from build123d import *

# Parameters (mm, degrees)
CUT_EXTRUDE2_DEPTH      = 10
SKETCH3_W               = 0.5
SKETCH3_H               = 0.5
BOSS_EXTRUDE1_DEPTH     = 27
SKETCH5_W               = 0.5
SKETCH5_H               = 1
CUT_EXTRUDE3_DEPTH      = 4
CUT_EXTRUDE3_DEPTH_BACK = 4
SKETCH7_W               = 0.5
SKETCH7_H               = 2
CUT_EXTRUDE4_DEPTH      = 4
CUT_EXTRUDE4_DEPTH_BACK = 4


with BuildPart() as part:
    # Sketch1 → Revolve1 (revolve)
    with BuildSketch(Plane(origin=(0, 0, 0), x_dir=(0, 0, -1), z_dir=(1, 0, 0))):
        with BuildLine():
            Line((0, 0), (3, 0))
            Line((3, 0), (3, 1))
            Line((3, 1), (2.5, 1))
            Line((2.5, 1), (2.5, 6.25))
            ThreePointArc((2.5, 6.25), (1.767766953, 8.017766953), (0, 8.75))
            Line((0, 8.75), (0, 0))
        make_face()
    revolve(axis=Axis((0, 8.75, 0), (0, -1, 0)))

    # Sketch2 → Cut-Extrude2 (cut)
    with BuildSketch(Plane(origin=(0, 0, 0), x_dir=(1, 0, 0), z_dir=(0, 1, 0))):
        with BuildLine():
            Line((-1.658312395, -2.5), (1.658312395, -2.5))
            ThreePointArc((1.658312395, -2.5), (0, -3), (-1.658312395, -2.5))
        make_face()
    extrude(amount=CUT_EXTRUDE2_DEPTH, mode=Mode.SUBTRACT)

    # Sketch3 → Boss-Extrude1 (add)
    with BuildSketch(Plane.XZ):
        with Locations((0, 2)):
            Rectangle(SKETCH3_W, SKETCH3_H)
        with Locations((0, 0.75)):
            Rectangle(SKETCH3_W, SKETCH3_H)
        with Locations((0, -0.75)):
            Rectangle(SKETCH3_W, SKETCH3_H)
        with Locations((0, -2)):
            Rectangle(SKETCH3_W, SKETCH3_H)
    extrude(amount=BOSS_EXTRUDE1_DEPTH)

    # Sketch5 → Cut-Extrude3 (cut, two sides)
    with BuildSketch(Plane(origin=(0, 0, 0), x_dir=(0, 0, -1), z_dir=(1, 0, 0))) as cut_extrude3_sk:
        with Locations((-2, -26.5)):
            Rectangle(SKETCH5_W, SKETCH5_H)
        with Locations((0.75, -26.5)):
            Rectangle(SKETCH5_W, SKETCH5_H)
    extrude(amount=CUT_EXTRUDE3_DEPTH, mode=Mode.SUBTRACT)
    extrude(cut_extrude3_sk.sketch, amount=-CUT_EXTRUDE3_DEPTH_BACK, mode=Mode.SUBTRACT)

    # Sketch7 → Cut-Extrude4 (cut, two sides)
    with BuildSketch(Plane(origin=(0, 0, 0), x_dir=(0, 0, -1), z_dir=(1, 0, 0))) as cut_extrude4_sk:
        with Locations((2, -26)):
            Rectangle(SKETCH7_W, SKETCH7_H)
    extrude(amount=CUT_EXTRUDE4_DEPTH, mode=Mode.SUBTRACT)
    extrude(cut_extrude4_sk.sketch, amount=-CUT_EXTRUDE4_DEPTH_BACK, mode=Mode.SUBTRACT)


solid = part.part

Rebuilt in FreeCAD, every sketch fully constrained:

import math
import FreeCAD as App
import Part
import Sketcher

V = App.Vector

doc = App.newDocument("Part")
body = doc.addObject("PartDesign::Body", "Body")

sketch1 = body.newObject("Sketcher::SketchObject", "Sketch")
sketch1.AttachmentSupport = (doc.getObject("YZ_Plane"), [""])
sketch1.MapMode = "FlatFace"
sketch1.addGeometry([
    Part.LineSegment(V(0, 0, 0), V(0, -3, 0)),
    Part.LineSegment(V(0, -3, 0), V(1, -3, 0)),
    Part.LineSegment(V(1, -3, 0), V(1, -2.5, 0)),
    Part.LineSegment(V(1, -2.5, 0), V(6.2, -2.5, 0)),
    Part.ArcOfCircle(Part.Circle(V(6.2, 0, 0), V(0, 0, 1), 2.5), math.radians(-90), math.radians(0)),
    Part.LineSegment(V(8.8, 0, 0), V(0, 0, 0)),
], False)
sketch1.addConstraint([
    Sketcher.Constraint("Coincident", 0, 2, 1, 1),
    Sketcher.Constraint("Coincident", 1, 2, 2, 1),
    Sketcher.Constraint("Coincident", 2, 2, 3, 1),
    Sketcher.Constraint("Tangent", 3, 2, 4, 1),
    Sketcher.Constraint("Coincident", 4, 2, 5, 1),
    Sketcher.Constraint("Coincident", 5, 2, 0, 1),
    Sketcher.Constraint("Vertical", 0),
    Sketcher.Constraint("Horizontal", 1),
    Sketcher.Constraint("Vertical", 2),
    Sketcher.Constraint("Horizontal", 3),
    Sketcher.Constraint("Horizontal", 5),
    Sketcher.Constraint("Coincident", 5, 2, -1, 1),
    Sketcher.Constraint("PointOnObject", 4, 3, -1),
    Sketcher.Constraint("Radius", 4, 2.5),
    Sketcher.Constraint("DistanceX", 1, 1, 1, 2, 1.0),
    Sketcher.Constraint("DistanceY", 0, 2, 0, 1, 3.0),
    Sketcher.Constraint("DistanceX", 3, 1, 3, 2, 5.25),
])
revolution = body.newObject("PartDesign::Revolution", "Revolution")
revolution.Profile = sketch1
revolution.ReferenceAxis = (sketch1, ["H_Axis"])
revolution.Angle = 360

sketch2 = body.newObject("Sketcher::SketchObject", "Sketch001")
sketch2.AttachmentSupport = (doc.getObject("XZ_Plane"), [""])
sketch2.MapMode = "FlatFace"
sketch2.addGeometry([
    Part.LineSegment(V(1.7, 2.5, 0), V(-1.7, 2.5, 0)),
    Part.ArcOfCircle(Part.Circle(V(0, 0, 0), V(0, 0, 1), 3), math.radians(56), math.radians(124)),
], False)
sketch2.addConstraint([
    Sketcher.Constraint("Coincident", 0, 1, 1, 1),
    Sketcher.Constraint("Coincident", 1, 2, 0, 2),
    Sketcher.Constraint("Horizontal", 0),
    Sketcher.Constraint("Coincident", 1, 3, -1, 1),
    Sketcher.Constraint("Radius", 1, 3.0),
    Sketcher.Constraint("DistanceY", -1, 1, 0, 1, 2.5),
])
pocket1 = body.newObject("PartDesign::Pocket", "Pocket")
pocket1.Profile = sketch2
pocket1.Length = 10

sketch3 = body.newObject("Sketcher::SketchObject", "Sketch002")
sketch3.AttachmentSupport = (doc.getObject("XZ_Plane"), [""])
sketch3.MapMode = "FlatFace"
sketch3.addGeometry([
    Part.LineSegment(V(-0.2, 2.2, 0), V(-0.2, 1.8, 0)),
    Part.LineSegment(V(-0.2, 1.8, 0), V(0.2, 1.8, 0)),
    Part.LineSegment(V(0.2, 1.8, 0), V(0.2, 2.2, 0)),
    Part.LineSegment(V(0.2, 2.2, 0), V(-0.2, 2.2, 0)),
    Part.LineSegment(V(-0.2, 1, 0), V(-0.2, 0.5, 0)),
    Part.LineSegment(V(-0.2, 0.5, 0), V(0.2, 0.5, 0)),
    Part.LineSegment(V(0.2, 0.5, 0), V(0.2, 1, 0)),
    Part.LineSegment(V(0.2, 1, 0), V(-0.2, 1, 0)),
    Part.LineSegment(V(-0.2, -0.5, 0), V(-0.2, -1, 0)),
    Part.LineSegment(V(-0.2, -1, 0), V(0.2, -1, 0)),
    Part.LineSegment(V(0.2, -1, 0), V(0.2, -0.5, 0)),
    Part.LineSegment(V(0.2, -0.5, 0), V(-0.2, -0.5, 0)),
    Part.LineSegment(V(-0.2, -1.8, 0), V(-0.2, -2.2, 0)),
    Part.LineSegment(V(-0.2, -2.2, 0), V(0.2, -2.2, 0)),
    Part.LineSegment(V(0.2, -2.2, 0), V(0.2, -1.8, 0)),
    Part.LineSegment(V(0.2, -1.8, 0), V(-0.2, -1.8, 0)),
], False)
sketch3.addConstraint([
    Sketcher.Constraint("Coincident", 0, 2, 1, 1),
    Sketcher.Constraint("Coincident", 1, 2, 2, 1),
    Sketcher.Constraint("Coincident", 2, 2, 3, 1),
    Sketcher.Constraint("Coincident", 3, 2, 0, 1),
    Sketcher.Constraint("Coincident", 4, 2, 5, 1),
    Sketcher.Constraint("Coincident", 5, 2, 6, 1),
    Sketcher.Constraint("Coincident", 6, 2, 7, 1),
    Sketcher.Constraint("Coincident", 7, 2, 4, 1),
    Sketcher.Constraint("Coincident", 8, 2, 9, 1),
    Sketcher.Constraint("Coincident", 9, 2, 10, 1),
    Sketcher.Constraint("Coincident", 10, 2, 11, 1),
    Sketcher.Constraint("Coincident", 11, 2, 8, 1),
    Sketcher.Constraint("Coincident", 12, 2, 13, 1),
    Sketcher.Constraint("Coincident", 13, 2, 14, 1),
    Sketcher.Constraint("Coincident", 14, 2, 15, 1),
    Sketcher.Constraint("Coincident", 15, 2, 12, 1),
    Sketcher.Constraint("Vertical", 0),
    Sketcher.Constraint("Horizontal", 1),
    Sketcher.Constraint("Vertical", 2),
    Sketcher.Constraint("Horizontal", 3),
    Sketcher.Constraint("Vertical", 4),
    Sketcher.Constraint("Horizontal", 5),
    Sketcher.Constraint("Vertical", 6),
    Sketcher.Constraint("Horizontal", 7),
    Sketcher.Constraint("Vertical", 8),
    Sketcher.Constraint("Horizontal", 9),
    Sketcher.Constraint("Vertical", 10),
    Sketcher.Constraint("Horizontal", 11),
    Sketcher.Constraint("Vertical", 12),
    Sketcher.Constraint("Horizontal", 13),
    Sketcher.Constraint("Vertical", 14),
    Sketcher.Constraint("Horizontal", 15),
    Sketcher.Constraint("Symmetric", 6, 2, 8, 2, -1, 1),
    Sketcher.Constraint("Symmetric", 4, 2, 10, 2, -1, 1),
    Sketcher.Constraint("Symmetric", 2, 2, 12, 2, -1, 1),
    Sketcher.Constraint("Symmetric", 0, 2, 14, 2, -1, 1),
    Sketcher.Constraint("Vertical", 3, 2, 4, 2),
    Sketcher.Constraint("Vertical", 2, 2, 5, 2),
    Sketcher.Constraint("Vertical", 7, 2, 8, 2),
    Sketcher.Constraint("Equal", 15, 0),
    Sketcher.Constraint("Equal", 2, 4),
    Sketcher.Constraint("DistanceX", 1, 1, 1, 2, 0.5),
    Sketcher.Constraint("DistanceY", -1, 1, 6, 2, 1.0),
    Sketcher.Constraint("DistanceY", -1, 1, 0, 2, 1.75),
])
pad1 = body.newObject("PartDesign::Pad", "Pad")
pad1.Profile = sketch3
pad1.Length = 27

sketch4 = body.newObject("Sketcher::SketchObject", "Sketch003")
sketch4.AttachmentSupport = (doc.getObject("YZ_Plane"), [""])
sketch4.MapMode = "FlatFace"
sketch4.addGeometry([
    Part.LineSegment(V(-26, 2.2, 0), V(-27, 2.2, 0)),
    Part.LineSegment(V(-27, 2.2, 0), V(-27, 1.8, 0)),
    Part.LineSegment(V(-27, 1.8, 0), V(-26, 1.8, 0)),
    Part.LineSegment(V(-26, 1.8, 0), V(-26, 2.2, 0)),
    Part.LineSegment(V(-26, -0.5, 0), V(-27, -0.5, 0)),
    Part.LineSegment(V(-27, -0.5, 0), V(-27, -1, 0)),
    Part.LineSegment(V(-27, -1, 0), V(-26, -1, 0)),
    Part.LineSegment(V(-26, -1, 0), V(-26, -0.5, 0)),
], False)
sketch4.addConstraint([
    Sketcher.Constraint("Coincident", 0, 2, 1, 1),
    Sketcher.Constraint("Coincident", 1, 2, 2, 1),
    Sketcher.Constraint("Coincident", 2, 2, 3, 1),
    Sketcher.Constraint("Coincident", 3, 2, 0, 1),
    Sketcher.Constraint("Coincident", 4, 2, 5, 1),
    Sketcher.Constraint("Coincident", 5, 2, 6, 1),
    Sketcher.Constraint("Coincident", 6, 2, 7, 1),
    Sketcher.Constraint("Coincident", 7, 2, 4, 1),
    Sketcher.Constraint("Horizontal", 0),
    Sketcher.Constraint("Vertical", 1),
    Sketcher.Constraint("Horizontal", 2),
    Sketcher.Constraint("Vertical", 3),
    Sketcher.Constraint("Horizontal", 4),
    Sketcher.Constraint("Vertical", 5),
    Sketcher.Constraint("Horizontal", 6),
    Sketcher.Constraint("Vertical", 7),
    Sketcher.Constraint("Vertical", 1, 2, 4, 2),
    Sketcher.Constraint("Vertical", 3, 2, 6, 2),
    Sketcher.Constraint("Equal", 3, 5),
    Sketcher.Constraint("DistanceX", 0, 2, 0, 1, 1.0),
    Sketcher.Constraint("DistanceY", 1, 2, 1, 1, 0.5),
    Sketcher.Constraint("DistanceX", 0, 2, -1, 1, 27.0),
    Sketcher.Constraint("DistanceY", 5, 2, -1, 1, 1.0),
    Sketcher.Constraint("DistanceY", -1, 1, 0, 2, 2.25),
])
pocket2 = body.newObject("PartDesign::Pocket", "Pocket001")
pocket2.Profile = sketch4
pocket2.Type = "ThroughAll"
pocket2.Midplane = True

sketch5 = body.newObject("Sketcher::SketchObject", "Sketch004")
sketch5.AttachmentSupport = (doc.getObject("YZ_Plane"), [""])
sketch5.MapMode = "FlatFace"
sketch5.addGeometry([
    Part.LineSegment(V(-25, -1.8, 0), V(-27, -1.8, 0)),
    Part.LineSegment(V(-27, -1.8, 0), V(-27, -2.2, 0)),
    Part.LineSegment(V(-27, -2.2, 0), V(-25, -2.2, 0)),
    Part.LineSegment(V(-25, -2.2, 0), V(-25, -1.8, 0)),
], False)
sketch5.addConstraint([
    Sketcher.Constraint("Coincident", 0, 2, 1, 1),
    Sketcher.Constraint("Coincident", 1, 2, 2, 1),
    Sketcher.Constraint("Coincident", 2, 2, 3, 1),
    Sketcher.Constraint("Coincident", 3, 2, 0, 1),
    Sketcher.Constraint("Horizontal", 0),
    Sketcher.Constraint("Vertical", 1),
    Sketcher.Constraint("Horizontal", 2),
    Sketcher.Constraint("Vertical", 3),
    Sketcher.Constraint("DistanceX", 0, 2, 0, 1, 2.0),
    Sketcher.Constraint("DistanceY", 1, 2, 1, 1, 0.5),
    Sketcher.Constraint("DistanceX", 0, 2, -1, 1, 27.0),
    Sketcher.Constraint("DistanceY", 0, 2, -1, 1, 1.75),
])
pocket3 = body.newObject("PartDesign::Pocket", "Pocket002")
pocket3.Profile = sketch5
pocket3.Type = "ThroughAll"
pocket3.Midplane = True

doc.recompute()
